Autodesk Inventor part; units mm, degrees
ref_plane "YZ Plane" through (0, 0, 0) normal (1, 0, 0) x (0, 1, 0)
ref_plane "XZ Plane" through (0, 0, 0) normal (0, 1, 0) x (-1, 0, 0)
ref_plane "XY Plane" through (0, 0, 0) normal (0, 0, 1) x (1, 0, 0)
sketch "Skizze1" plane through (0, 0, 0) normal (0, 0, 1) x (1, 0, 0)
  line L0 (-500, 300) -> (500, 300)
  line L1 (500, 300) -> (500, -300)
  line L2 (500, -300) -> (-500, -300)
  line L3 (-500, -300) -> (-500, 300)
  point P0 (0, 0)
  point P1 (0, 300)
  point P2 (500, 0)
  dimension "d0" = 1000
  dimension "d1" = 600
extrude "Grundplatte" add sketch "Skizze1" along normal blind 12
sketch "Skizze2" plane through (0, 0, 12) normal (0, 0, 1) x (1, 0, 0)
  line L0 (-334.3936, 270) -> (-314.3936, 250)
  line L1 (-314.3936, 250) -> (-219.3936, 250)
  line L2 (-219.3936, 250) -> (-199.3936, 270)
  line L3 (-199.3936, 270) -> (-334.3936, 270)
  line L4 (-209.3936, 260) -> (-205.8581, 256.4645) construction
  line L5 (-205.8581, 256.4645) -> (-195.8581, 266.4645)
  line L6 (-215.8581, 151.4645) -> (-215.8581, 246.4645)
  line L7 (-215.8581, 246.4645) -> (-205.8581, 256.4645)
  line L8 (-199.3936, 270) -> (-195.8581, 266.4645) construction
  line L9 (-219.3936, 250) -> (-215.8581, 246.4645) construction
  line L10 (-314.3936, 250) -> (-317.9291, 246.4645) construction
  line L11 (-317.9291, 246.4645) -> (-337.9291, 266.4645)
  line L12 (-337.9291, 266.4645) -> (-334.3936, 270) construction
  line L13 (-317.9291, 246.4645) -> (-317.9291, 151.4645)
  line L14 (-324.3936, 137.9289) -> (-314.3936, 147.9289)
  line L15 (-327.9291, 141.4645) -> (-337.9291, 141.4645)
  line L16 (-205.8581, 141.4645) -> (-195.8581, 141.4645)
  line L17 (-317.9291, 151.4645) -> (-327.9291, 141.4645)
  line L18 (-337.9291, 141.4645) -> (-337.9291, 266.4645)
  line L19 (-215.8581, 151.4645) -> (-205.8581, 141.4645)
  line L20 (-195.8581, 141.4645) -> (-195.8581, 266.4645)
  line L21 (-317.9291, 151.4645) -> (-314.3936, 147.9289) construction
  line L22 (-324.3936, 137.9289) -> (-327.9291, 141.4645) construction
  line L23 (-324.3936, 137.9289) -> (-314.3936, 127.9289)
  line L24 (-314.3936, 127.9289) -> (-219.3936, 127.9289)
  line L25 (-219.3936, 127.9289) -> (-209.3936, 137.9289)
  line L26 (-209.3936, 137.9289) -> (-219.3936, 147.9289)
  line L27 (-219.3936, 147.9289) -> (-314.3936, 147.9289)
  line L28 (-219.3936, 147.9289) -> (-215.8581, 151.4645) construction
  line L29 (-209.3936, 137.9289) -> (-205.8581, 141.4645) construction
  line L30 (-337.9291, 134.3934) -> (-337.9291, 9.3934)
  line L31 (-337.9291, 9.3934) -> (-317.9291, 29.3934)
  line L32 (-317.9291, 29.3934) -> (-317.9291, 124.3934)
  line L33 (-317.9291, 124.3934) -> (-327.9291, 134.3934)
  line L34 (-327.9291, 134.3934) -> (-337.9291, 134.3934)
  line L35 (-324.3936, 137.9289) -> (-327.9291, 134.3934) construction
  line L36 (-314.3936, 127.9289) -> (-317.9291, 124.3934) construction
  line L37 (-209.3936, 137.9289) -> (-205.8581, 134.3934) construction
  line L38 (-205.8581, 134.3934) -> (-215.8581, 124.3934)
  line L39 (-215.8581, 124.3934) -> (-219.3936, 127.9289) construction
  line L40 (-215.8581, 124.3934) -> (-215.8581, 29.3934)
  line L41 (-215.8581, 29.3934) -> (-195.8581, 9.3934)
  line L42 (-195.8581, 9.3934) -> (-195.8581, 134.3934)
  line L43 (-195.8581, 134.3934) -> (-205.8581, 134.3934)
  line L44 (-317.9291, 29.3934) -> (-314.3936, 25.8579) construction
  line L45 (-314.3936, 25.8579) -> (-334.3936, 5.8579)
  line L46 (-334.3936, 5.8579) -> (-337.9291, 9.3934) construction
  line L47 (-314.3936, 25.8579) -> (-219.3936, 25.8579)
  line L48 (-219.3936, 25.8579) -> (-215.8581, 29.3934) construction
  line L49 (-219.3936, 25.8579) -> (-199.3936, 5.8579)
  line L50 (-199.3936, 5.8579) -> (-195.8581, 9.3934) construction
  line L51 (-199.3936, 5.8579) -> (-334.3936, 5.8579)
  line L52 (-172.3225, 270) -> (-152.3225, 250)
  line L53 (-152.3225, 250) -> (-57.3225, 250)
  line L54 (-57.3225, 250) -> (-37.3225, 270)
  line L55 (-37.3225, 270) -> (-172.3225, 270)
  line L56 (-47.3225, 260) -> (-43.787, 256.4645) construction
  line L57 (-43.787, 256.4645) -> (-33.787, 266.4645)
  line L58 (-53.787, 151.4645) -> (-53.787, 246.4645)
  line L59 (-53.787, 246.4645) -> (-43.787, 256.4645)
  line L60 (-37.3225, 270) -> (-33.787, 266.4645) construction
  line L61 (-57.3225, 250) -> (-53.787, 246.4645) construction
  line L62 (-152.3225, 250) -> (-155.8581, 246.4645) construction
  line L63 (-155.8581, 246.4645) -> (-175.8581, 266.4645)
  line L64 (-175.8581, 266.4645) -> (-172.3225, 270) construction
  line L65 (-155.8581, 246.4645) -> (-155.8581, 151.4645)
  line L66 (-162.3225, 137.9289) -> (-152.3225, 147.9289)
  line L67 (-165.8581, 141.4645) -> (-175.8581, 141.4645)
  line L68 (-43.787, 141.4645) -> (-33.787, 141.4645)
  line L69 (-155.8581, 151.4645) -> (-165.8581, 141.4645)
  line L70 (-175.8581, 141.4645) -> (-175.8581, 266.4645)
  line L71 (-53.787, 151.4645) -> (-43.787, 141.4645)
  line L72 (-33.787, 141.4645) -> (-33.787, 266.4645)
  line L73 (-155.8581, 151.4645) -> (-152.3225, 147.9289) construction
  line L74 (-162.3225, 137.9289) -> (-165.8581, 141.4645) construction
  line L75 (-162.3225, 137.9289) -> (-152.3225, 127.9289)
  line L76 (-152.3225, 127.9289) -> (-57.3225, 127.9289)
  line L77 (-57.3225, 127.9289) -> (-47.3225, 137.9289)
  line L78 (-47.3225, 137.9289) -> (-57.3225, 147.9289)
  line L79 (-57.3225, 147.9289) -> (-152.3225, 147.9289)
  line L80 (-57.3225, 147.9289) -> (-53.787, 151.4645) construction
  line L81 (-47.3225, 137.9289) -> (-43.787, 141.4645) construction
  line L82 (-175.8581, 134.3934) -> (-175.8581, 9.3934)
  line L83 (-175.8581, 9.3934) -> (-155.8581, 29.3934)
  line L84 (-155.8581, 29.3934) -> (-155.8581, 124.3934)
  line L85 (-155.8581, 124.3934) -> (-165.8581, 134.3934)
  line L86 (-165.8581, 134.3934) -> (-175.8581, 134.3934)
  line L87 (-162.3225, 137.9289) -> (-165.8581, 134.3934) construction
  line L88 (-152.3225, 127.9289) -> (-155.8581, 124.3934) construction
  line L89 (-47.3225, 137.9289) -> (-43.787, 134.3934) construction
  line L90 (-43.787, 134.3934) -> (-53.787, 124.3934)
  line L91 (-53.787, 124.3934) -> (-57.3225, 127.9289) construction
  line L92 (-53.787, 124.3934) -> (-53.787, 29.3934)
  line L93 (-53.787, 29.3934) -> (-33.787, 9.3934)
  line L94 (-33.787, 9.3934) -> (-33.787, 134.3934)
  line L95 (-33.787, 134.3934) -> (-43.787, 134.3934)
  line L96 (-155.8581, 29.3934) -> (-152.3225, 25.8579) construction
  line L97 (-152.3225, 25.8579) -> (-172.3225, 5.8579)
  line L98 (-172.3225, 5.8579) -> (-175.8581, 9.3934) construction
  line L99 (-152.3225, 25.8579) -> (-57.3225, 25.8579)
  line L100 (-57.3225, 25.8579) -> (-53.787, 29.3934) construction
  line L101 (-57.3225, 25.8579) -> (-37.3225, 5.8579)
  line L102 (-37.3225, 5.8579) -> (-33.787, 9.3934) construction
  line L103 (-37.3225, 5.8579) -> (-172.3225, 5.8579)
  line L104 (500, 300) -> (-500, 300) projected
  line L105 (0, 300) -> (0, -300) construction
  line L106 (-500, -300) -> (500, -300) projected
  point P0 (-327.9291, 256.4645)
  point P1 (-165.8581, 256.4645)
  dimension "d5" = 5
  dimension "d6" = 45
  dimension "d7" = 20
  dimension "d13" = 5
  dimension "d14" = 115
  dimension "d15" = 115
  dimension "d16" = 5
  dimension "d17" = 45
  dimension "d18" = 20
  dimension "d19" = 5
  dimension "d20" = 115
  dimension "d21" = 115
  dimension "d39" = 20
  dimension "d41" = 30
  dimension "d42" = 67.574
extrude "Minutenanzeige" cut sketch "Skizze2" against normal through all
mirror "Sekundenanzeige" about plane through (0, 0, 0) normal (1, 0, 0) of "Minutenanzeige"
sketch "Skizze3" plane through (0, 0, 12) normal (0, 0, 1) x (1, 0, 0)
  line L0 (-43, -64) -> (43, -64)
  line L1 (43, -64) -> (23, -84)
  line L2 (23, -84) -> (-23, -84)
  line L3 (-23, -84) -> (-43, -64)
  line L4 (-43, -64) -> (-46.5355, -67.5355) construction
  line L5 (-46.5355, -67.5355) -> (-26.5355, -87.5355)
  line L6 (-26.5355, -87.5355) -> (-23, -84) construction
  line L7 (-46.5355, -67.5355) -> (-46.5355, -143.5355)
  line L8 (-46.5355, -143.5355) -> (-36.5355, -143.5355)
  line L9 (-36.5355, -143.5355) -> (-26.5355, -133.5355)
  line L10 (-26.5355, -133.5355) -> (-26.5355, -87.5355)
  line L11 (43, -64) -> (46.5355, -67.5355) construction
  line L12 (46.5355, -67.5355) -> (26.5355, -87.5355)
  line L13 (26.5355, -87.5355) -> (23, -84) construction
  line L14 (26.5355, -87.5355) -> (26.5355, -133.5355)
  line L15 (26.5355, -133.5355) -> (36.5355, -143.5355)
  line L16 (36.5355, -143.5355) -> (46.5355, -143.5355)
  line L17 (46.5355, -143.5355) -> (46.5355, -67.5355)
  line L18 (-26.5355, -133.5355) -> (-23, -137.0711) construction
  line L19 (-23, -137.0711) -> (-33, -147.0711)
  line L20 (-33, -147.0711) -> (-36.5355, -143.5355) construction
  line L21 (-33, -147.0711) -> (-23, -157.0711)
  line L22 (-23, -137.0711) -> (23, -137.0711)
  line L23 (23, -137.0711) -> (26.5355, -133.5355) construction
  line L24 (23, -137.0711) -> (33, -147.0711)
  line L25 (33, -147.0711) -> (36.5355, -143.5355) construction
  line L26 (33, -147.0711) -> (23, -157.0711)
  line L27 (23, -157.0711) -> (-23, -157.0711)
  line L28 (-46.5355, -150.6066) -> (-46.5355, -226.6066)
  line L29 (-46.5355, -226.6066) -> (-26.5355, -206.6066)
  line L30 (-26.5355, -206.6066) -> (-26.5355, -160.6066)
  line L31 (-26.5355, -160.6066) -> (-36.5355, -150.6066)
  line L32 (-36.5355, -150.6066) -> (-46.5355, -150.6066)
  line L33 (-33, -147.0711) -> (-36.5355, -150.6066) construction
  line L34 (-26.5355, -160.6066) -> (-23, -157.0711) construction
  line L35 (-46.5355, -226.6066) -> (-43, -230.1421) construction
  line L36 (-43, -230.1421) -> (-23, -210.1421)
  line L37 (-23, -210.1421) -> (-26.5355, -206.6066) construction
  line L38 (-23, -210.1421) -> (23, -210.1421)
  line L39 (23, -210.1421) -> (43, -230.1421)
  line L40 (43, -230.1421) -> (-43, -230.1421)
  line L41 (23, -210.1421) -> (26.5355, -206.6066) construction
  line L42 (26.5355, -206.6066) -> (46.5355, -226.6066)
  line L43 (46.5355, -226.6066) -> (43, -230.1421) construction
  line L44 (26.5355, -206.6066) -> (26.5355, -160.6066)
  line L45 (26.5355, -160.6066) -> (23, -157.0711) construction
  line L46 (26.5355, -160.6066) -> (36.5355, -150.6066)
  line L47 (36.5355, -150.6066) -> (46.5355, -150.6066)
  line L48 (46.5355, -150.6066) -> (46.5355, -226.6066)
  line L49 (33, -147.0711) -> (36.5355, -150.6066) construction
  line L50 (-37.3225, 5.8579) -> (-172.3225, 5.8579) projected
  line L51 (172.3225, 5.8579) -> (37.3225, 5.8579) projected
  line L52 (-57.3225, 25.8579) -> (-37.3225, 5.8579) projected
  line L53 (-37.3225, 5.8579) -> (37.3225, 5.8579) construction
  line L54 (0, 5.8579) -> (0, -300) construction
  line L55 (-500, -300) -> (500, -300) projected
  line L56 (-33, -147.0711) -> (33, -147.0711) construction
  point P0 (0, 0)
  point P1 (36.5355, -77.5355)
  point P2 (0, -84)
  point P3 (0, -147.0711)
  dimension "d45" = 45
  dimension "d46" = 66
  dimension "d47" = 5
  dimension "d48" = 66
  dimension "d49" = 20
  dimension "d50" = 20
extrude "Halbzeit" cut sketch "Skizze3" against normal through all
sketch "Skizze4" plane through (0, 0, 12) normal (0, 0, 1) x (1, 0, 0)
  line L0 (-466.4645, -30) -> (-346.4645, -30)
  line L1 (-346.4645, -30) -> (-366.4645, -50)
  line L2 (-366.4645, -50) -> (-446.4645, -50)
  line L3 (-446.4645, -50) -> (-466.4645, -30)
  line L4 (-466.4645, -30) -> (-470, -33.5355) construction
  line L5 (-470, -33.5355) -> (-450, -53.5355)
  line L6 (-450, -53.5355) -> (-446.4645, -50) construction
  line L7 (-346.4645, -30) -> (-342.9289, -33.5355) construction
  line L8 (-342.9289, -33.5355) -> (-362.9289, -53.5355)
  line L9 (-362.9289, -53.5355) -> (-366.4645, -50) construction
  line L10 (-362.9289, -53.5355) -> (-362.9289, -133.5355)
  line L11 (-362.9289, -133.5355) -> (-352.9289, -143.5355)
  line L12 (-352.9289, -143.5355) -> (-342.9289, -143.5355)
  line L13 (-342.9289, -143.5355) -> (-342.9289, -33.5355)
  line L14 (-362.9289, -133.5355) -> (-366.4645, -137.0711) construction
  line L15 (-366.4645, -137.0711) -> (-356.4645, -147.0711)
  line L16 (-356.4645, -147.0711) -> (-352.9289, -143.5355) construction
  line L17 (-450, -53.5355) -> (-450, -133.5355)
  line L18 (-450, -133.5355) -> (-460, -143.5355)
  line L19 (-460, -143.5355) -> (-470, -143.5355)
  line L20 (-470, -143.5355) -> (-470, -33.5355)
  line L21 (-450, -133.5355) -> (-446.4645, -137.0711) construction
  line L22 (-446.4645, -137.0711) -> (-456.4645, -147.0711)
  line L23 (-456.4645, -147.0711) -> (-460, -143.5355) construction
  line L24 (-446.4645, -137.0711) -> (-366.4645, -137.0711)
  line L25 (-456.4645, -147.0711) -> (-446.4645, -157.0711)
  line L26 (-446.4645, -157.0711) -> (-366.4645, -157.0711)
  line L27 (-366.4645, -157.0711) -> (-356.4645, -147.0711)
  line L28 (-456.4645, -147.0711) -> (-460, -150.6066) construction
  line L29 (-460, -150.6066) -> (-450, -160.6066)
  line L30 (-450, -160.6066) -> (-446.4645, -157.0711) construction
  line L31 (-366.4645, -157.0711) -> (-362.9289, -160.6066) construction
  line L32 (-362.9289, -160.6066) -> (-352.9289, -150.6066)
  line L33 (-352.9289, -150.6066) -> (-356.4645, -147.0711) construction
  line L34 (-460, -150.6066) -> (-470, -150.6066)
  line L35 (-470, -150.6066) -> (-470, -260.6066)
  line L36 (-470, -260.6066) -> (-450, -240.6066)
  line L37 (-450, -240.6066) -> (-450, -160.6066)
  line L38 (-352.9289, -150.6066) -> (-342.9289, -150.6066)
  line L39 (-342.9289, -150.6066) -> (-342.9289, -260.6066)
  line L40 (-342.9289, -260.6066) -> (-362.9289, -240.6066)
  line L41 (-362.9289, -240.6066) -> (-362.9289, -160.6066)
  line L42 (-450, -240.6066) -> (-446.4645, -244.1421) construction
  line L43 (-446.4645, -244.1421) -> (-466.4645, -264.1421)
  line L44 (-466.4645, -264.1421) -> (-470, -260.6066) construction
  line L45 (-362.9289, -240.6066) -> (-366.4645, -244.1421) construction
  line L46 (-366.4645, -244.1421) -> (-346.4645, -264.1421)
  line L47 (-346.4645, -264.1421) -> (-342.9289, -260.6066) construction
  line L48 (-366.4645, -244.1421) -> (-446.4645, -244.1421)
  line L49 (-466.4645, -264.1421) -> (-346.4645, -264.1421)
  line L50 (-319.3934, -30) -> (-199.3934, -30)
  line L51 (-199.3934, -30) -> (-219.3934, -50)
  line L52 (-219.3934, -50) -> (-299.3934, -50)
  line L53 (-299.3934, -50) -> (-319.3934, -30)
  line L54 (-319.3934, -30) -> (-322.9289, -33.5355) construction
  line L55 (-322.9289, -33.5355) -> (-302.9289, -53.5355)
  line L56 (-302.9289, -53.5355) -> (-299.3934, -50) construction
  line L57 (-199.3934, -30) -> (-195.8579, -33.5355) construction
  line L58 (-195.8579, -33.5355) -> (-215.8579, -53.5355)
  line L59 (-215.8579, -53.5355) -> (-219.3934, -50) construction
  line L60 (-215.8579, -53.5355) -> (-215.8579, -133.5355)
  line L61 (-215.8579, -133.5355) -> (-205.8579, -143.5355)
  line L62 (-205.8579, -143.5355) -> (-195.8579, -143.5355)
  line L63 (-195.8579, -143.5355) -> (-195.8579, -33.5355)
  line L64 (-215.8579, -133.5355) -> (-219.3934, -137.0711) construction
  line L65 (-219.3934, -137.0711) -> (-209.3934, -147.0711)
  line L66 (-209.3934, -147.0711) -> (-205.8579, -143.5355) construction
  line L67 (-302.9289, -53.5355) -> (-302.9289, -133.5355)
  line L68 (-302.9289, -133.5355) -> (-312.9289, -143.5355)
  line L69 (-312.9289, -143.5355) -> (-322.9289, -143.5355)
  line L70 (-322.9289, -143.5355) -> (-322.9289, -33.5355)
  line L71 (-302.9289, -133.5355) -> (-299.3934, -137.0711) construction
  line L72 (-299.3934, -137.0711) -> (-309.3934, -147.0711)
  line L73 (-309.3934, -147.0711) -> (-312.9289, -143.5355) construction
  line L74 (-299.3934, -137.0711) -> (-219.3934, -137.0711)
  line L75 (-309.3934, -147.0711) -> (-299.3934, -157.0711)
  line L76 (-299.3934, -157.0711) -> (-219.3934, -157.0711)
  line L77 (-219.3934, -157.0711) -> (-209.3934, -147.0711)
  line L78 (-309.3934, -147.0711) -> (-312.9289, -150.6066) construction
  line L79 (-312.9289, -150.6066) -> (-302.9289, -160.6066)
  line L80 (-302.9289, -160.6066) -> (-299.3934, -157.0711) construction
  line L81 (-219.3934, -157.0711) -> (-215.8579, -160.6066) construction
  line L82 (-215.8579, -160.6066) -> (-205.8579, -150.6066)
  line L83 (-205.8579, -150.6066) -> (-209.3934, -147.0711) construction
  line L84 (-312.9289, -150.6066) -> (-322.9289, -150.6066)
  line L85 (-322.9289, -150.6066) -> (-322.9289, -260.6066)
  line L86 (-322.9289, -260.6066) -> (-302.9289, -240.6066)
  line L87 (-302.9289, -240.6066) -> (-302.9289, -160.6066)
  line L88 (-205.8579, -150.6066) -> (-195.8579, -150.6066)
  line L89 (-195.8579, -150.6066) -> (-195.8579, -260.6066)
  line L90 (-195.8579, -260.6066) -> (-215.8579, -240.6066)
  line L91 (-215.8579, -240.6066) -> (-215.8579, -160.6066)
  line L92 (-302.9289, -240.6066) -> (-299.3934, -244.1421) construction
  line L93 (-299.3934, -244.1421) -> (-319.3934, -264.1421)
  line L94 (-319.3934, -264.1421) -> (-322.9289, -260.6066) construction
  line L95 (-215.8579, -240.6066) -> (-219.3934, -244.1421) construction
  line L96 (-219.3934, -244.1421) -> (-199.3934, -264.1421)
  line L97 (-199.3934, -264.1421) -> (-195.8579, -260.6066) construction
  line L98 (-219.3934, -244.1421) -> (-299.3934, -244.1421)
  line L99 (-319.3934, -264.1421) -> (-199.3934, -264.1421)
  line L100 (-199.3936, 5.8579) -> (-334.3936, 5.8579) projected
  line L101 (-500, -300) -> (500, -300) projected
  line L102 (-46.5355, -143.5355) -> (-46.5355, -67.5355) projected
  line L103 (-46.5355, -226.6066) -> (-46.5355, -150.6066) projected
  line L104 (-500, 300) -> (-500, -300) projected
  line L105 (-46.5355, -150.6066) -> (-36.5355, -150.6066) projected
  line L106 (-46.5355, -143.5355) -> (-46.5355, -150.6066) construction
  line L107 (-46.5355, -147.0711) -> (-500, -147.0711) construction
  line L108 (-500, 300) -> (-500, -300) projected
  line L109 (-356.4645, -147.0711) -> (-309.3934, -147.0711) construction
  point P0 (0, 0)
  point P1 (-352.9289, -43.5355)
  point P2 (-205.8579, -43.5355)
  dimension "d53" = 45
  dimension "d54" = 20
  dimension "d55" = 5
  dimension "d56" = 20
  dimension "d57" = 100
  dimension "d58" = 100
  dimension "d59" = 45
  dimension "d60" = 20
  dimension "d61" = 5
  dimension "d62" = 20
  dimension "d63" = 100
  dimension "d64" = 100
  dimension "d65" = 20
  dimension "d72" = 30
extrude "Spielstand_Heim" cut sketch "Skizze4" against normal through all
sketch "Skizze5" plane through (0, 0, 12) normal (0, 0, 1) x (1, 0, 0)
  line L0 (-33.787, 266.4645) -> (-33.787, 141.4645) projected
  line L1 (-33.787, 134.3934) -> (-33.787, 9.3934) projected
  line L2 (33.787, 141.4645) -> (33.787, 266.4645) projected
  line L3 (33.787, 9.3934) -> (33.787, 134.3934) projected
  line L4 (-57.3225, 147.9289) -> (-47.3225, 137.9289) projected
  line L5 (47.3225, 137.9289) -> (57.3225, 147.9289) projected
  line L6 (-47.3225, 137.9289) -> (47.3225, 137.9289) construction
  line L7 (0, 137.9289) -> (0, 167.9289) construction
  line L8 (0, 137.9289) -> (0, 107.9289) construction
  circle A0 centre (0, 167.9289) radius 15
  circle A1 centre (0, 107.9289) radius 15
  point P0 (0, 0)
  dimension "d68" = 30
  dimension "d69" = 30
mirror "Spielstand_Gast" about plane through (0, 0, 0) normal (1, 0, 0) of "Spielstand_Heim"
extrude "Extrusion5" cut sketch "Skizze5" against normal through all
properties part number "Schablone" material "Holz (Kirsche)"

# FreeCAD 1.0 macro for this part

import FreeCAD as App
import Part
import Sketcher
from FreeCAD import Vector
Q = App.Units.Quantity


def add_polygon(sketch, points):
    """Adds a closed chain of lines whose ends are joined by coincident constraints."""
    first, n = sketch.GeometryCount, len(points)
    for a, b in zip(points, points[1:] + points[:1]):
        sketch.addGeometry(Part.LineSegment(App.Vector(*a, 0), App.Vector(*b, 0)), False)
    for i in range(n):
        sketch.addConstraint(Sketcher.Constraint("Coincident", first + i, 2, first + (i + 1) % n, 1))

doc = App.newDocument("Part")
body = doc.addObject("PartDesign::Body", "Body")

sketch1 = doc.addObject("Sketcher::SketchObject", "Sketch")
body.addObject(sketch1)
sketch1.AttachmentSupport = (doc.XY_Plane, [""])
sketch1.MapMode = "FlatFace"
add_polygon(sketch1, [(500, 300), (-500, 300), (-500, -300), (500, -300)])
sketch1.addConstraint(Sketcher.Constraint("Horizontal", 0))
sketch1.addConstraint(Sketcher.Constraint("Vertical", 1))
sketch1.addConstraint(Sketcher.Constraint("Horizontal", 2))
sketch1.addConstraint(Sketcher.Constraint("Vertical", 3))
sketch1.addConstraint(Sketcher.Constraint("Symmetric", 0, 2, 2, 2, -1, 1))
sketch1.addConstraint(Sketcher.Constraint("DistanceX", 0, 2, 0, 1, Q("1000 mm")))
sketch1.addConstraint(Sketcher.Constraint("DistanceY", 1, 2, 1, 1, Q("600 mm")))
pad1 = doc.addObject("PartDesign::Pad", "Pad")
body.addObject(pad1)
pad1.Profile = sketch1
pad1.Length = 12

sketch2 = doc.addObject("Sketcher::SketchObject", "Sketch001")
body.addObject(sketch2)
sketch2.AttachmentSupport = (doc.XY_Plane, [""])
sketch2.MapMode = "FlatFace"
sketch2.AttachmentOffset = App.Placement(Vector(0, 0, 12), App.Rotation())
add_polygon(sketch2, [(-199, 270), (-334, 270), (-314, 250), (-219, 250)])
add_polygon(sketch2, [(-196, 266), (-216, 246), (-216, 151), (-206, 141), (-196, 141)])
add_polygon(sketch2, [(-318, 151), (-318, 246), (-338, 266), (-338, 141), (-328, 141)])
add_polygon(sketch2, [(-314, 148), (-324, 138), (-314, 128), (-219, 128), (-209, 138), (-219, 148)])
add_polygon(sketch2, [(-328, 134), (-338, 134), (-338, 9), (-318, 29), (-318, 124)])
add_polygon(sketch2, [(-196, 134), (-206, 134), (-216, 124), (-216, 29), (-196, 9)])
add_polygon(sketch2, [(-219, 26), (-314, 26), (-334, 6), (-199, 6)])
add_polygon(sketch2, [(-37, 270), (-172, 270), (-152, 250), (-57, 250)])
add_polygon(sketch2, [(-34, 266), (-54, 246), (-54, 151), (-44, 141), (-34, 141)])
add_polygon(sketch2, [(-156, 151), (-156, 246), (-176, 266), (-176, 141), (-166, 141)])
add_polygon(sketch2, [(-152, 148), (-162, 138), (-152, 128), (-57, 128), (-47, 138), (-57, 148)])
add_polygon(sketch2, [(-166, 134), (-176, 134), (-176, 9), (-156, 29), (-156, 124)])
add_polygon(sketch2, [(-34, 134), (-44, 134), (-54, 124), (-54, 29), (-34, 9)])
add_polygon(sketch2, [(-57, 26), (-152, 26), (-172, 6), (-37, 6)])
sketch2.addConstraint(Sketcher.Constraint("Horizontal", 0))
sketch2.addConstraint(Sketcher.Constraint("Horizontal", 2))
sketch2.addConstraint(Sketcher.Constraint("Vertical", 5))
sketch2.addConstraint(Sketcher.Constraint("Horizontal", 7))
sketch2.addConstraint(Sketcher.Constraint("Vertical", 8))
sketch2.addConstraint(Sketcher.Constraint("Vertical", 9))
sketch2.addConstraint(Sketcher.Constraint("Vertical", 11))
sketch2.addConstraint(Sketcher.Constraint("Horizontal", 12))
sketch2.addConstraint(Sketcher.Constraint("Horizontal", 16))
sketch2.addConstraint(Sketcher.Constraint("Horizontal", 19))
sketch2.addConstraint(Sketcher.Constraint("Horizontal", 20))
sketch2.addConstraint(Sketcher.Constraint("Vertical", 21))
sketch2.addConstraint(Sketcher.Constraint("Vertical", 23))
sketch2.addConstraint(Sketcher.Constraint("Horizontal", 25))
sketch2.addConstraint(Sketcher.Constraint("Vertical", 27))
sketch2.addConstraint(Sketcher.Constraint("Vertical", 29))
sketch2.addConstraint(Sketcher.Constraint("Horizontal", 30))
sketch2.addConstraint(Sketcher.Constraint("Horizontal", 32))
sketch2.addConstraint(Sketcher.Constraint("Horizontal", 34))
sketch2.addConstraint(Sketcher.Constraint("Horizontal", 36))
sketch2.addConstraint(Sketcher.Constraint("Vertical", 39))
sketch2.addConstraint(Sketcher.Constraint("Horizontal", 41))
sketch2.addConstraint(Sketcher.Constraint("Vertical", 42))
sketch2.addConstraint(Sketcher.Constraint("Vertical", 43))
sketch2.addConstraint(Sketcher.Constraint("Vertical", 45))
sketch2.addConstraint(Sketcher.Constraint("Horizontal", 46))
sketch2.addConstraint(Sketcher.Constraint("Horizontal", 50))
sketch2.addConstraint(Sketcher.Constraint("Horizontal", 53))
sketch2.addConstraint(Sketcher.Constraint("Horizontal", 54))
sketch2.addConstraint(Sketcher.Constraint("Vertical", 55))
sketch2.addConstraint(Sketcher.Constraint("Vertical", 57))
sketch2.addConstraint(Sketcher.Constraint("Horizontal", 59))
sketch2.addConstraint(Sketcher.Constraint("Vertical", 61))
sketch2.addConstraint(Sketcher.Constraint("Vertical", 63))
sketch2.addConstraint(Sketcher.Constraint("Horizontal", 64))
sketch2.addConstraint(Sketcher.Constraint("Horizontal", 66))
sketch2.addConstraint(Sketcher.Constraint("Perpendicular", 1, 3))
sketch2.addConstraint(Sketcher.Constraint("Parallel", 3, 4))
sketch2.addConstraint(Sketcher.Constraint("Perpendicular", 4, 6))
sketch2.addConstraint(Sketcher.Constraint("Parallel", 6, 10))
sketch2.addConstraint(Sketcher.Constraint("Perpendicular", 10, 13))
sketch2.addConstraint(Sketcher.Constraint("Parallel", 13, 14))
sketch2.addConstraint(Sketcher.Constraint("Perpendicular", 14, 15))
sketch2.addConstraint(Sketcher.Constraint("Perpendicular", 15, 17))
sketch2.addConstraint(Sketcher.Constraint("Perpendicular", 17, 18))
sketch2.addConstraint(Sketcher.Constraint("Perpendicular", 18, 22))
sketch2.addConstraint(Sketcher.Constraint("Perpendicular", 22, 24))
sketch2.addConstraint(Sketcher.Constraint("Perpendicular", 24, 26))
sketch2.addConstraint(Sketcher.Constraint("Perpendicular", 26, 28))
sketch2.addConstraint(Sketcher.Constraint("Perpendicular", 28, 31))
sketch2.addConstraint(Sketcher.Constraint("Perpendicular", 31, 33))
sketch2.addConstraint(Sketcher.Constraint("Parallel", 33, 35))
sketch2.addConstraint(Sketcher.Constraint("Perpendicular", 35, 37))
sketch2.addConstraint(Sketcher.Constraint("Parallel", 37, 38))
sketch2.addConstraint(Sketcher.Constraint("Perpendicular", 38, 40))
sketch2.addConstraint(Sketcher.Constraint("Parallel", 40, 44))
sketch2.addConstraint(Sketcher.Constraint("Perpendicular", 44, 47))
sketch2.addConstraint(Sketcher.Constraint("Parallel", 47, 48))
sketch2.addConstraint(Sketcher.Constraint("Perpendicular", 48, 49))
sketch2.addConstraint(Sketcher.Constraint("Perpendicular", 49, 51))
sketch2.addConstraint(Sketcher.Constraint("Perpendicular", 51, 52))
sketch2.addConstraint(Sketcher.Constraint("Perpendicular", 52, 56))
sketch2.addConstraint(Sketcher.Constraint("Perpendicular", 56, 58))
sketch2.addConstraint(Sketcher.Constraint("Perpendicular", 58, 60))
sketch2.addConstraint(Sketcher.Constraint("Perpendicular", 60, 62))
sketch2.addConstraint(Sketcher.Constraint("Perpendicular", 62, 65))
sketch2.addConstraint(Sketcher.Constraint("Perpendicular", 65, 67))
sketch2.addConstraint(Sketcher.Constraint("Horizontal", 4, 2, 9, 2))
sketch2.addConstraint(Sketcher.Constraint("Horizontal", 8, 2, 10, 2))
sketch2.addConstraint(Sketcher.Constraint("Horizontal", 7, 2, 11, 2))
sketch2.addConstraint(Sketcher.Constraint("Horizontal", 5, 2, 13, 2))
sketch2.addConstraint(Sketcher.Constraint("Horizontal", 14, 2, 17, 2))
sketch2.addConstraint(Sketcher.Constraint("Horizontal", 24, 2, 25, 2))
sketch2.addConstraint(Sketcher.Constraint("Horizontal", 23, 2, 26, 2))
sketch2.addConstraint(Sketcher.Constraint("Horizontal", 22, 2, 27, 2))
sketch2.addConstraint(Sketcher.Constraint("Horizontal", 21, 2, 28, 2))
sketch2.addConstraint(Sketcher.Constraint("Horizontal", 3, 2, 34, 2))
sketch2.addConstraint(Sketcher.Constraint("Horizontal", 2, 2, 35, 2))
sketch2.addConstraint(Sketcher.Constraint("Horizontal", 9, 2, 38, 2))
sketch2.addConstraint(Sketcher.Constraint("Horizontal", 13, 2, 39, 2))
sketch2.addConstraint(Sketcher.Constraint("Horizontal", 12, 2, 40, 2))
sketch2.addConstraint(Sketcher.Constraint("Horizontal", 10, 2, 42, 2))
sketch2.addConstraint(Sketcher.Constraint("Horizontal", 38, 2, 43, 2))
sketch2.addConstraint(Sketcher.Constraint("Horizontal", 42, 2, 44, 2))
sketch2.addConstraint(Sketcher.Constraint("Horizontal", 41, 2, 45, 2))
sketch2.addConstraint(Sketcher.Constraint("Horizontal", 39, 2, 47, 2))
sketch2.addConstraint(Sketcher.Constraint("Horizontal", 17, 2, 48, 2))
sketch2.addConstraint(Sketcher.Constraint("Horizontal", 16, 2, 49, 2))
sketch2.addConstraint(Sketcher.Constraint("Horizontal", 48, 2, 51, 2))
sketch2.addConstraint(Sketcher.Constraint("Horizontal", 19, 2, 52, 2))
sketch2.addConstraint(Sketcher.Constraint("Horizontal", 29, 2, 54, 2))
sketch2.addConstraint(Sketcher.Constraint("Horizontal", 28, 2, 55, 2))
sketch2.addConstraint(Sketcher.Constraint("Horizontal", 27, 2, 56, 2))
sketch2.addConstraint(Sketcher.Constraint("Horizontal", 26, 2, 57, 2))
sketch2.addConstraint(Sketcher.Constraint("Horizontal", 58, 2, 59, 2))
sketch2.addConstraint(Sketcher.Constraint("Horizontal", 57, 2, 60, 2))
sketch2.addConstraint(Sketcher.Constraint("Horizontal", 56, 2, 61, 2))
sketch2.addConstraint(Sketcher.Constraint("Horizontal", 55, 2, 62, 2))
sketch2.addConstraint(Sketcher.Constraint("Horizontal", 33, 2, 64, 2))
sketch2.addConstraint(Sketcher.Constraint("Horizontal", 32, 2, 65, 2))
sketch2.addConstraint(Sketcher.Constraint("Vertical", 1, 2, 15, 2))
sketch2.addConstraint(Sketcher.Constraint("Vertical", 2, 2, 16, 2))
sketch2.addConstraint(Sketcher.Constraint("Vertical", 16, 2, 18, 2))
sketch2.addConstraint(Sketcher.Constraint("Vertical", 15, 2, 19, 2))
sketch2.addConstraint(Sketcher.Constraint("Vertical", 11, 2, 20, 2))
sketch2.addConstraint(Sketcher.Constraint("Vertical", 13, 2, 22, 2))
sketch2.addConstraint(Sketcher.Constraint("Vertical", 12, 2, 24, 2))
sketch2.addConstraint(Sketcher.Constraint("Vertical", 6, 2, 25, 2))
sketch2.addConstraint(Sketcher.Constraint("Vertical", 19, 2, 30, 2))
sketch2.addConstraint(Sketcher.Constraint("Vertical", 0, 2, 31, 2))
sketch2.addConstraint(Sketcher.Constraint("Vertical", 3, 2, 32, 2))
sketch2.addConstraint(Sketcher.Constraint("Vertical", 35, 2, 49, 2))
sketch2.addConstraint(Sketcher.Constraint("Vertical", 36, 2, 50, 2))
sketch2.addConstraint(Sketcher.Constraint("Vertical", 45, 2, 54, 2))
sketch2.addConstraint(Sketcher.Constraint("Vertical", 40, 2, 59, 2))
sketch2.addConstraint(Sketcher.Constraint("Vertical", 53, 2, 64, 2))
sketch2.addConstraint(Sketcher.Constraint("Vertical", 37, 2, 66, 2))
sketch2.addConstraint(Sketcher.Constraint("Equal", 32, 34))
sketch2.addConstraint(Sketcher.Constraint("Equal", 64, 5))
sketch2.addConstraint(Sketcher.Constraint("Equal", 11, 21))
sketch2.addConstraint(Sketcher.Constraint("Equal", 3, 4))
sketch2.addConstraint(Sketcher.Constraint("Equal", 13, 14))
sketch2.addConstraint(Sketcher.Constraint("DistanceX", 0, 2, 0, 1, Q("135 mm")))
sketch2.addConstraint(Sketcher.Constraint("DistanceX", 2, 1, 2, 2, Q("95 mm")))
sketch2.addConstraint(Sketcher.Constraint("DistanceX", 7, 1, 7, 2, Q("10 mm")))
sketch2.addConstraint(Sketcher.Constraint("DistanceY", -1, 1, 0, 2, Q("270 mm")))
sketch2.addConstraint(Sketcher.Constraint("DistanceX", 4, 2, -1, 1, Q("215.858 mm")))
sketch2.addConstraint(Sketcher.Constraint("DistanceX", 9, 2, -1, 1, Q("317.929 mm")))
sketch2.addConstraint(Sketcher.Constraint("DistanceY", -1, 1, 14, 2, Q("137.929 mm")))
sketch2.addConstraint(Sketcher.Constraint("DistanceY", -1, 1, 30, 2, Q("25.858 mm")))
sketch2.addConstraint(Sketcher.Constraint("DistanceX", 38, 2, -1, 1, Q("53.787 mm")))
sketch2.addConstraint(Sketcher.Constraint("DistanceX", 43, 2, -1, 1, Q("155.858 mm")))
sketch2.addConstraint(Sketcher.Constraint("DistanceX", 0, 2, -1, 1, Q("334.3936 mm")))
sketch2.addConstraint(Sketcher.Constraint("DistanceY", -1, 1, 4, 2, Q("246.4645 mm")))
sketch2.addConstraint(Sketcher.Constraint("DistanceY", -1, 1, 20, 2, Q("134.3934 mm")))
sketch2.addConstraint(Sketcher.Constraint("DistanceX", 34, 2, -1, 1, Q("172.3225 mm")))
pocket1 = doc.addObject("PartDesign::Pocket", "Pocket")
body.addObject(pocket1)
pocket1.Profile = sketch2
pocket1.Type = "ThroughAll"
doc.recompute()

mirrored = doc.addObject("PartDesign::Mirrored", "Mirrored")
body.addObject(mirrored)
mirrored.Originals = [pocket1]
mirrored.MirrorPlane = (doc.YZ_Plane, [""])
body.Tip = mirrored

sketch3 = doc.addObject("Sketcher::SketchObject", "Sketch002")
body.addObject(sketch3)
sketch3.AttachmentSupport = (doc.XY_Plane, [""])
sketch3.MapMode = "FlatFace"
sketch3.AttachmentOffset = App.Placement(Vector(0, 0, 12), App.Rotation())
add_polygon(sketch3, [(43, -64), (-43, -64), (-23, -84), (23, -84)])
add_polygon(sketch3, [(-27, -88), (-47, -68), (-47, -144), (-37, -144), (-27, -134)])
add_polygon(sketch3, [(47, -144), (47, -68), (27, -88), (27, -134), (37, -144)])
add_polygon(sketch3, [(23, -137), (-23, -137), (-33, -147), (-23, -157), (23, -157), (33, -147)])
add_polygon(sketch3, [(-37, -151), (-47, -151), (-47, -227), (-27, -207), (-27, -161)])
add_polygon(sketch3, [(-23, -210), (-43, -230), (43, -230), (23, -210)])
add_polygon(sketch3, [(27, -161), (27, -207), (47, -227), (47, -151), (37, -151)])
sketch3.addConstraint(Sketcher.Constraint("Horizontal", 0))
sketch3.addConstraint(Sketcher.Constraint("Horizontal", 2))
sketch3.addConstraint(Sketcher.Constraint("Vertical", 5))
sketch3.addConstraint(Sketcher.Constraint("Horizontal", 6))
sketch3.addConstraint(Sketcher.Constraint("Vertical", 8))
sketch3.addConstraint(Sketcher.Constraint("Vertical", 9))
sketch3.addConstraint(Sketcher.Constraint("Vertical", 11))
sketch3.addConstraint(Sketcher.Constraint("Horizontal", 13))
sketch3.addConstraint(Sketcher.Constraint("Horizontal", 14))
sketch3.addConstraint(Sketcher.Constraint("Horizontal", 17))
sketch3.addConstraint(Sketcher.Constraint("Horizontal", 20))
sketch3.addConstraint(Sketcher.Constraint("Vertical", 21))
sketch3.addConstraint(Sketcher.Constraint("Vertical", 23))
sketch3.addConstraint(Sketcher.Constraint("Horizontal", 26))
sketch3.addConstraint(Sketcher.Constraint("Horizontal", 28))
sketch3.addConstraint(Sketcher.Constraint("Vertical", 29))
sketch3.addConstraint(Sketcher.Constraint("Vertical", 31))
sketch3.addConstraint(Sketcher.Constraint("Horizontal", 32))
sketch3.addConstraint(Sketcher.Constraint("Symmetric", 4, 2, 9, 2, -2))
sketch3.addConstraint(Sketcher.Constraint("Symmetric", 8, 2, 10, 2, -2))
sketch3.addConstraint(Sketcher.Constraint("Symmetric", 6, 2, 12, 2, -2))
sketch3.addConstraint(Sketcher.Constraint("Symmetric", 15, 2, 18, 2, -2))
sketch3.addConstraint(Sketcher.Constraint("Symmetric", 22, 2, 29, 2, -2))
sketch3.addConstraint(Sketcher.Constraint("Symmetric", 21, 2, 30, 2, -2))
sketch3.addConstraint(Sketcher.Constraint("Symmetric", 24, 2, 32, 2, -2))
sketch3.addConstraint(Sketcher.Constraint("Perpendicular", 1, 3))
sketch3.addConstraint(Sketcher.Constraint("Perpendicular", 3, 4))
sketch3.addConstraint(Sketcher.Constraint("Perpendicular", 4, 7))
sketch3.addConstraint(Sketcher.Constraint("Parallel", 7, 10))
sketch3.addConstraint(Sketcher.Constraint("Perpendicular", 10, 12))
sketch3.addConstraint(Sketcher.Constraint("Perpendicular", 12, 15))
sketch3.addConstraint(Sketcher.Constraint("Perpendicular", 15, 16))
sketch3.addConstraint(Sketcher.Constraint("Perpendicular", 16, 18))
sketch3.addConstraint(Sketcher.Constraint("Perpendicular", 18, 19))
sketch3.addConstraint(Sketcher.Constraint("Perpendicular", 19, 22))
sketch3.addConstraint(Sketcher.Constraint("Perpendicular", 22, 24))
sketch3.addConstraint(Sketcher.Constraint("Perpendicular", 24, 25))
sketch3.addConstraint(Sketcher.Constraint("Perpendicular", 25, 27))
sketch3.addConstraint(Sketcher.Constraint("Perpendicular", 30, 33))
sketch3.addConstraint(Sketcher.Constraint("Vertical", 1, 2, 14, 2))
sketch3.addConstraint(Sketcher.Constraint("Vertical", 14, 2, 16, 2))
sketch3.addConstraint(Sketcher.Constraint("Vertical", 2, 2, 17, 2))
sketch3.addConstraint(Sketcher.Constraint("Vertical", 5, 2, 20, 2))
sketch3.addConstraint(Sketcher.Constraint("Vertical", 8, 2, 22, 2))
sketch3.addConstraint(Sketcher.Constraint("Vertical", 6, 2, 24, 2))
sketch3.addConstraint(Sketcher.Constraint("Vertical", 0, 2, 25, 2))
sketch3.addConstraint(Sketcher.Constraint("Vertical", 3, 2, 26, 2))
sketch3.addConstraint(Sketcher.Constraint("Vertical", 19, 2, 27, 2))
sketch3.addConstraint(Sketcher.Constraint("Equal", 28, 8))
sketch3.addConstraint(Sketcher.Constraint("Equal", 9, 21))
sketch3.addConstraint(Sketcher.Constraint("Equal", 3, 4))
sketch3.addConstraint(Sketcher.Constraint("Equal", 12, 15))
sketch3.addConstraint(Sketcher.Constraint("DistanceX", 0, 2, 1, 2, Q("20 mm")))
sketch3.addConstraint(Sketcher.Constraint("DistanceX", 0, 2, 2, 2, Q("66 mm")))
sketch3.addConstraint(Sketcher.Constraint("DistanceY", 16, 2, 14, 2, Q("20 mm")))
sketch3.addConstraint(Sketcher.Constraint("DistanceY", 0, 2, -1, 1, Q("64 mm")))
sketch3.addConstraint(Sketcher.Constraint("DistanceY", 14, 2, -1, 1, Q("137.071 mm")))
sketch3.addConstraint(Sketcher.Constraint("DistanceY", 25, 2, -1, 1, Q("230.142 mm")))
sketch3.addConstraint(Sketcher.Constraint("DistanceX", 8, 2, 9, 2, Q("73.071 mm")))
sketch3.addConstraint(Sketcher.Constraint("DistanceY", 20, 2, 5, 2, Q("7.071 mm")))
sketch3.addConstraint(Sketcher.Constraint("DistanceY", 4, 2, -1, 1, Q("67.5355 mm")))
pocket2 = doc.addObject("PartDesign::Pocket", "Pocket001")
body.addObject(pocket2)
pocket2.Profile = sketch3
pocket2.Type = "ThroughAll"

sketch4 = doc.addObject("Sketcher::SketchObject", "Sketch003")
body.addObject(sketch4)
sketch4.AttachmentSupport = (doc.XY_Plane, [""])
sketch4.MapMode = "FlatFace"
sketch4.AttachmentOffset = App.Placement(Vector(0, 0, 12), App.Rotation())
add_polygon(sketch4, [(-346, -30), (-466, -30), (-446, -50), (-366, -50)])
add_polygon(sketch4, [(-450, -54), (-470, -34), (-470, -144), (-460, -144), (-450, -134)])
add_polygon(sketch4, [(-343, -144), (-343, -34), (-363, -54), (-363, -134), (-353, -144)])
add_polygon(sketch4, [(-356, -147), (-366, -137), (-446, -137), (-456, -147), (-446, -157), (-366, -157)])
add_polygon(sketch4, [(-450, -161), (-460, -151), (-470, -151), (-470, -261), (-450, -241)])
add_polygon(sketch4, [(-353, -151), (-363, -161), (-363, -241), (-343, -261), (-343, -151)])
add_polygon(sketch4, [(-366, -244), (-446, -244), (-466, -264), (-346, -264)])
add_polygon(sketch4, [(-199, -30), (-319, -30), (-299, -50), (-219, -50)])
add_polygon(sketch4, [(-303, -54), (-323, -34), (-323, -144), (-313, -144), (-303, -134)])
add_polygon(sketch4, [(-196, -144), (-196, -34), (-216, -54), (-216, -134), (-206, -144)])
add_polygon(sketch4, [(-209, -147), (-219, -137), (-299, -137), (-309, -147), (-299, -157), (-219, -157)])
add_polygon(sketch4, [(-303, -161), (-313, -151), (-323, -151), (-323, -261), (-303, -241)])
add_polygon(sketch4, [(-206, -151), (-216, -161), (-216, -241), (-196, -261), (-196, -151)])
add_polygon(sketch4, [(-219, -244), (-299, -244), (-319, -264), (-199, -264)])
sketch4.addConstraint(Sketcher.Constraint("Horizontal", 0))
sketch4.addConstraint(Sketcher.Constraint("Horizontal", 2))
sketch4.addConstraint(Sketcher.Constraint("Vertical", 5))
sketch4.addConstraint(Sketcher.Constraint("Horizontal", 6))
sketch4.addConstraint(Sketcher.Constraint("Vertical", 8))
sketch4.addConstraint(Sketcher.Constraint("Vertical", 9))
sketch4.addConstraint(Sketcher.Constraint("Vertical", 11))
sketch4.addConstraint(Sketcher.Constraint("Horizontal", 13))
sketch4.addConstraint(Sketcher.Constraint("Horizontal", 15))
sketch4.addConstraint(Sketcher.Constraint("Horizontal", 18))
sketch4.addConstraint(Sketcher.Constraint("Horizontal", 21))
sketch4.addConstraint(Sketcher.Constraint("Vertical", 22))
sketch4.addConstraint(Sketcher.Constraint("Vertical", 24))
sketch4.addConstraint(Sketcher.Constraint("Vertical", 26))
sketch4.addConstraint(Sketcher.Constraint("Vertical", 28))
sketch4.addConstraint(Sketcher.Constraint("Horizontal", 29))
sketch4.addConstraint(Sketcher.Constraint("Horizontal", 30))
sketch4.addConstraint(Sketcher.Constraint("Horizontal", 32))
sketch4.addConstraint(Sketcher.Constraint("Horizontal", 34))
sketch4.addConstraint(Sketcher.Constraint("Horizontal", 36))
sketch4.addConstraint(Sketcher.Constraint("Vertical", 39))
sketch4.addConstraint(Sketcher.Constraint("Horizontal", 40))
sketch4.addConstraint(Sketcher.Constraint("Vertical", 42))
sketch4.addConstraint(Sketcher.Constraint("Vertical", 43))
sketch4.addConstraint(Sketcher.Constraint("Vertical", 45))
sketch4.addConstraint(Sketcher.Constraint("Horizontal", 47))
sketch4.addConstraint(Sketcher.Constraint("Horizontal", 49))
sketch4.addConstraint(Sketcher.Constraint("Horizontal", 52))
sketch4.addConstraint(Sketcher.Constraint("Horizontal", 55))
sketch4.addConstraint(Sketcher.Constraint("Vertical", 56))
sketch4.addConstraint(Sketcher.Constraint("Vertical", 58))
sketch4.addConstraint(Sketcher.Constraint("Vertical", 60))
sketch4.addConstraint(Sketcher.Constraint("Vertical", 62))
sketch4.addConstraint(Sketcher.Constraint("Horizontal", 63))
sketch4.addConstraint(Sketcher.Constraint("Horizontal", 64))
sketch4.addConstraint(Sketcher.Constraint("Horizontal", 66))
sketch4.addConstraint(Sketcher.Constraint("Perpendicular", 1, 3))
sketch4.addConstraint(Sketcher.Constraint("Perpendicular", 3, 4))
sketch4.addConstraint(Sketcher.Constraint("Perpendicular", 4, 7))
sketch4.addConstraint(Sketcher.Constraint("Parallel", 7, 10))
sketch4.addConstraint(Sketcher.Constraint("Perpendicular", 10, 12))
sketch4.addConstraint(Sketcher.Constraint("Parallel", 12, 14))
sketch4.addConstraint(Sketcher.Constraint("Perpendicular", 14, 16))
sketch4.addConstraint(Sketcher.Constraint("Perpendicular", 16, 17))
sketch4.addConstraint(Sketcher.Constraint("Perpendicular", 17, 19))
sketch4.addConstraint(Sketcher.Constraint("Perpendicular", 19, 20))
sketch4.addConstraint(Sketcher.Constraint("Perpendicular", 20, 23))
sketch4.addConstraint(Sketcher.Constraint("Parallel", 23, 25))
sketch4.addConstraint(Sketcher.Constraint("Perpendicular", 25, 27))
sketch4.addConstraint(Sketcher.Constraint("Perpendicular", 27, 31))
sketch4.addConstraint(Sketcher.Constraint("Perpendicular", 31, 33))
sketch4.addConstraint(Sketcher.Constraint("Parallel", 33, 35))
sketch4.addConstraint(Sketcher.Constraint("Perpendicular", 35, 37))
sketch4.addConstraint(Sketcher.Constraint("Perpendicular", 37, 38))
sketch4.addConstraint(Sketcher.Constraint("Perpendicular", 38, 41))
sketch4.addConstraint(Sketcher.Constraint("Parallel", 41, 44))
sketch4.addConstraint(Sketcher.Constraint("Perpendicular", 44, 46))
sketch4.addConstraint(Sketcher.Constraint("Parallel", 46, 48))
sketch4.addConstraint(Sketcher.Constraint("Perpendicular", 48, 50))
sketch4.addConstraint(Sketcher.Constraint("Perpendicular", 50, 51))
sketch4.addConstraint(Sketcher.Constraint("Perpendicular", 51, 53))
sketch4.addConstraint(Sketcher.Constraint("Perpendicular", 53, 54))
sketch4.addConstraint(Sketcher.Constraint("Perpendicular", 54, 57))
sketch4.addConstraint(Sketcher.Constraint("Parallel", 57, 59))
sketch4.addConstraint(Sketcher.Constraint("Perpendicular", 59, 61))
sketch4.addConstraint(Sketcher.Constraint("Perpendicular", 61, 65))
sketch4.addConstraint(Sketcher.Constraint("Perpendicular", 65, 67))
sketch4.addConstraint(Sketcher.Constraint("Horizontal", 4, 2, 9, 2))
sketch4.addConstraint(Sketcher.Constraint("Horizontal", 8, 2, 10, 2))
sketch4.addConstraint(Sketcher.Constraint("Horizontal", 7, 2, 11, 2))
sketch4.addConstraint(Sketcher.Constraint("Horizontal", 6, 2, 12, 2))
sketch4.addConstraint(Sketcher.Constraint("Horizontal", 16, 2, 19, 2))
sketch4.addConstraint(Sketcher.Constraint("Horizontal", 24, 2, 25, 2))
sketch4.addConstraint(Sketcher.Constraint("Horizontal", 23, 2, 26, 2))
sketch4.addConstraint(Sketcher.Constraint("Horizontal", 22, 2, 27, 2))
sketch4.addConstraint(Sketcher.Constraint("Horizontal", 21, 2, 28, 2))
sketch4.addConstraint(Sketcher.Constraint("Horizontal", 3, 2, 34, 2))
sketch4.addConstraint(Sketcher.Constraint("Horizontal", 2, 2, 35, 2))
sketch4.addConstraint(Sketcher.Constraint("Horizontal", 9, 2, 38, 2))
sketch4.addConstraint(Sketcher.Constraint("Horizontal", 13, 2, 39, 2))
sketch4.addConstraint(Sketcher.Constraint("Horizontal", 11, 2, 41, 2))
sketch4.addConstraint(Sketcher.Constraint("Horizontal", 10, 2, 42, 2))
sketch4.addConstraint(Sketcher.Constraint("Horizontal", 38, 2, 43, 2))
sketch4.addConstraint(Sketcher.Constraint("Horizontal", 42, 2, 44, 2))
sketch4.addConstraint(Sketcher.Constraint("Horizontal", 41, 2, 45, 2))
sketch4.addConstraint(Sketcher.Constraint("Horizontal", 40, 2, 46, 2))
sketch4.addConstraint(Sketcher.Constraint("Horizontal", 15, 2, 48, 2))
sketch4.addConstraint(Sketcher.Constraint("Horizontal", 19, 2, 50, 2))
sketch4.addConstraint(Sketcher.Constraint("Horizontal", 18, 2, 51, 2))
sketch4.addConstraint(Sketcher.Constraint("Horizontal", 50, 2, 53, 2))
sketch4.addConstraint(Sketcher.Constraint("Horizontal", 29, 2, 54, 2))
sketch4.addConstraint(Sketcher.Constraint("Horizontal", 27, 2, 56, 2))
sketch4.addConstraint(Sketcher.Constraint("Horizontal", 26, 2, 57, 2))
sketch4.addConstraint(Sketcher.Constraint("Horizontal", 25, 2, 58, 2))
sketch4.addConstraint(Sketcher.Constraint("Horizontal", 58, 2, 59, 2))
sketch4.addConstraint(Sketcher.Constraint("Horizontal", 57, 2, 60, 2))
sketch4.addConstraint(Sketcher.Constraint("Horizontal", 56, 2, 61, 2))
sketch4.addConstraint(Sketcher.Constraint("Horizontal", 55, 2, 62, 2))
sketch4.addConstraint(Sketcher.Constraint("Horizontal", 33, 2, 64, 2))
sketch4.addConstraint(Sketcher.Constraint("Horizontal", 32, 2, 65, 2))
sketch4.addConstraint(Sketcher.Constraint("Vertical", 2, 2, 14, 2))
sketch4.addConstraint(Sketcher.Constraint("Vertical", 1, 2, 15, 2))
sketch4.addConstraint(Sketcher.Constraint("Vertical", 15, 2, 17, 2))
sketch4.addConstraint(Sketcher.Constraint("Vertical", 14, 2, 18, 2))
sketch4.addConstraint(Sketcher.Constraint("Vertical", 6, 2, 20, 2))
sketch4.addConstraint(Sketcher.Constraint("Vertical", 5, 2, 21, 2))
sketch4.addConstraint(Sketcher.Constraint("Vertical", 8, 2, 23, 2))
sketch4.addConstraint(Sketcher.Constraint("Vertical", 11, 2, 25, 2))
sketch4.addConstraint(Sketcher.Constraint("Vertical", 17, 2, 30, 2))
sketch4.addConstraint(Sketcher.Constraint("Vertical", 0, 2, 31, 2))
sketch4.addConstraint(Sketcher.Constraint("Vertical", 3, 2, 32, 2))
sketch4.addConstraint(Sketcher.Constraint("Vertical", 36, 2, 48, 2))
sketch4.addConstraint(Sketcher.Constraint("Vertical", 35, 2, 49, 2))
sketch4.addConstraint(Sketcher.Constraint("Vertical", 40, 2, 54, 2))
sketch4.addConstraint(Sketcher.Constraint("Vertical", 45, 2, 59, 2))
sketch4.addConstraint(Sketcher.Constraint("Vertical", 51, 2, 64, 2))
sketch4.addConstraint(Sketcher.Constraint("Vertical", 37, 2, 66, 2))
sketch4.addConstraint(Sketcher.Constraint("Equal", 32, 34))
sketch4.addConstraint(Sketcher.Constraint("Equal", 64, 8))
sketch4.addConstraint(Sketcher.Constraint("Equal", 9, 22))
sketch4.addConstraint(Sketcher.Constraint("Equal", 3, 4))
sketch4.addConstraint(Sketcher.Constraint("Equal", 12, 14))
sketch4.addConstraint(Sketcher.Constraint("DistanceY", 0, 2, -1, 1, Q("30 mm")))
sketch4.addConstraint(Sketcher.Constraint("DistanceX", 0, 2, 0, 1, Q("120 mm")))
sketch4.addConstraint(Sketcher.Constraint("DistanceX", 2, 1, 2, 2, Q("80 mm")))
sketch4.addConstraint(Sketcher.Constraint("DistanceX", 6, 1, 6, 2, Q("10 mm")))
sketch4.addConstraint(Sketcher.Constraint("DistanceX", 4, 2, -1, 1, Q("470 mm")))
sketch4.addConstraint(Sketcher.Constraint("DistanceX", 9, 2, -1, 1, Q("342.929 mm")))
sketch4.addConstraint(Sketcher.Constraint("DistanceY", 14, 2, -1, 1, Q("137.071 mm")))
sketch4.addConstraint(Sketcher.Constraint("DistanceY", 30, 2, -1, 1, Q("244.142 mm")))
sketch4.addConstraint(Sketcher.Constraint("DistanceX", 38, 2, -1, 1, Q("322.929 mm")))
sketch4.addConstraint(Sketcher.Constraint("DistanceX", 43, 2, -1, 1, Q("195.858 mm")))
sketch4.addConstraint(Sketcher.Constraint("DistanceX", 0, 2, -1, 1, Q("466.4645 mm")))
sketch4.addConstraint(Sketcher.Constraint("DistanceY", 4, 2, -1, 1, Q("33.5355 mm")))
sketch4.addConstraint(Sketcher.Constraint("DistanceY", 20, 2, -1, 1, Q("150.6066 mm")))
sketch4.addConstraint(Sketcher.Constraint("DistanceX", 34, 2, -1, 1, Q("319.3934 mm")))
pocket3 = doc.addObject("PartDesign::Pocket", "Pocket002")
body.addObject(pocket3)
pocket3.Profile = sketch4
pocket3.Type = "ThroughAll"
doc.recompute()

mirrored2 = doc.addObject("PartDesign::Mirrored", "Mirrored001")
body.addObject(mirrored2)
mirrored2.Originals = [pocket3]
mirrored2.MirrorPlane = (doc.YZ_Plane, [""])
body.Tip = mirrored2

sketch5 = doc.addObject("Sketcher::SketchObject", "Sketch004")
body.addObject(sketch5)
sketch5.AttachmentSupport = (doc.XY_Plane, [""])
sketch5.MapMode = "FlatFace"
sketch5.AttachmentOffset = App.Placement(Vector(0, 0, 12), App.Rotation())
sketch5.addGeometry(Part.Circle(Vector(0, 168, 0), Vector(0, 0, 1), 15), False)
sketch5.addGeometry(Part.Circle(Vector(0, 108, 0), Vector(0, 0, 1), 15), False)
sketch5.addConstraint(Sketcher.Constraint("Equal", 0, 1))
sketch5.addConstraint(Sketcher.Constraint("PointOnObject", 0, 3, -2))
sketch5.addConstraint(Sketcher.Constraint("PointOnObject", 1, 3, -2))
sketch5.addConstraint(Sketcher.Constraint("Diameter", 0, Q("30 mm")))
sketch5.addConstraint(Sketcher.Constraint("DistanceY", 1, 3, 0, 3, Q("60 mm")))
sketch5.addConstraint(Sketcher.Constraint("DistanceY", -1, 1, 0, 3, Q("167.929 mm")))
pocket4 = doc.addObject("PartDesign::Pocket", "Pocket003")
body.addObject(pocket4)
pocket4.Profile = sketch5
pocket4.Type = "ThroughAll"

doc.recompute()
